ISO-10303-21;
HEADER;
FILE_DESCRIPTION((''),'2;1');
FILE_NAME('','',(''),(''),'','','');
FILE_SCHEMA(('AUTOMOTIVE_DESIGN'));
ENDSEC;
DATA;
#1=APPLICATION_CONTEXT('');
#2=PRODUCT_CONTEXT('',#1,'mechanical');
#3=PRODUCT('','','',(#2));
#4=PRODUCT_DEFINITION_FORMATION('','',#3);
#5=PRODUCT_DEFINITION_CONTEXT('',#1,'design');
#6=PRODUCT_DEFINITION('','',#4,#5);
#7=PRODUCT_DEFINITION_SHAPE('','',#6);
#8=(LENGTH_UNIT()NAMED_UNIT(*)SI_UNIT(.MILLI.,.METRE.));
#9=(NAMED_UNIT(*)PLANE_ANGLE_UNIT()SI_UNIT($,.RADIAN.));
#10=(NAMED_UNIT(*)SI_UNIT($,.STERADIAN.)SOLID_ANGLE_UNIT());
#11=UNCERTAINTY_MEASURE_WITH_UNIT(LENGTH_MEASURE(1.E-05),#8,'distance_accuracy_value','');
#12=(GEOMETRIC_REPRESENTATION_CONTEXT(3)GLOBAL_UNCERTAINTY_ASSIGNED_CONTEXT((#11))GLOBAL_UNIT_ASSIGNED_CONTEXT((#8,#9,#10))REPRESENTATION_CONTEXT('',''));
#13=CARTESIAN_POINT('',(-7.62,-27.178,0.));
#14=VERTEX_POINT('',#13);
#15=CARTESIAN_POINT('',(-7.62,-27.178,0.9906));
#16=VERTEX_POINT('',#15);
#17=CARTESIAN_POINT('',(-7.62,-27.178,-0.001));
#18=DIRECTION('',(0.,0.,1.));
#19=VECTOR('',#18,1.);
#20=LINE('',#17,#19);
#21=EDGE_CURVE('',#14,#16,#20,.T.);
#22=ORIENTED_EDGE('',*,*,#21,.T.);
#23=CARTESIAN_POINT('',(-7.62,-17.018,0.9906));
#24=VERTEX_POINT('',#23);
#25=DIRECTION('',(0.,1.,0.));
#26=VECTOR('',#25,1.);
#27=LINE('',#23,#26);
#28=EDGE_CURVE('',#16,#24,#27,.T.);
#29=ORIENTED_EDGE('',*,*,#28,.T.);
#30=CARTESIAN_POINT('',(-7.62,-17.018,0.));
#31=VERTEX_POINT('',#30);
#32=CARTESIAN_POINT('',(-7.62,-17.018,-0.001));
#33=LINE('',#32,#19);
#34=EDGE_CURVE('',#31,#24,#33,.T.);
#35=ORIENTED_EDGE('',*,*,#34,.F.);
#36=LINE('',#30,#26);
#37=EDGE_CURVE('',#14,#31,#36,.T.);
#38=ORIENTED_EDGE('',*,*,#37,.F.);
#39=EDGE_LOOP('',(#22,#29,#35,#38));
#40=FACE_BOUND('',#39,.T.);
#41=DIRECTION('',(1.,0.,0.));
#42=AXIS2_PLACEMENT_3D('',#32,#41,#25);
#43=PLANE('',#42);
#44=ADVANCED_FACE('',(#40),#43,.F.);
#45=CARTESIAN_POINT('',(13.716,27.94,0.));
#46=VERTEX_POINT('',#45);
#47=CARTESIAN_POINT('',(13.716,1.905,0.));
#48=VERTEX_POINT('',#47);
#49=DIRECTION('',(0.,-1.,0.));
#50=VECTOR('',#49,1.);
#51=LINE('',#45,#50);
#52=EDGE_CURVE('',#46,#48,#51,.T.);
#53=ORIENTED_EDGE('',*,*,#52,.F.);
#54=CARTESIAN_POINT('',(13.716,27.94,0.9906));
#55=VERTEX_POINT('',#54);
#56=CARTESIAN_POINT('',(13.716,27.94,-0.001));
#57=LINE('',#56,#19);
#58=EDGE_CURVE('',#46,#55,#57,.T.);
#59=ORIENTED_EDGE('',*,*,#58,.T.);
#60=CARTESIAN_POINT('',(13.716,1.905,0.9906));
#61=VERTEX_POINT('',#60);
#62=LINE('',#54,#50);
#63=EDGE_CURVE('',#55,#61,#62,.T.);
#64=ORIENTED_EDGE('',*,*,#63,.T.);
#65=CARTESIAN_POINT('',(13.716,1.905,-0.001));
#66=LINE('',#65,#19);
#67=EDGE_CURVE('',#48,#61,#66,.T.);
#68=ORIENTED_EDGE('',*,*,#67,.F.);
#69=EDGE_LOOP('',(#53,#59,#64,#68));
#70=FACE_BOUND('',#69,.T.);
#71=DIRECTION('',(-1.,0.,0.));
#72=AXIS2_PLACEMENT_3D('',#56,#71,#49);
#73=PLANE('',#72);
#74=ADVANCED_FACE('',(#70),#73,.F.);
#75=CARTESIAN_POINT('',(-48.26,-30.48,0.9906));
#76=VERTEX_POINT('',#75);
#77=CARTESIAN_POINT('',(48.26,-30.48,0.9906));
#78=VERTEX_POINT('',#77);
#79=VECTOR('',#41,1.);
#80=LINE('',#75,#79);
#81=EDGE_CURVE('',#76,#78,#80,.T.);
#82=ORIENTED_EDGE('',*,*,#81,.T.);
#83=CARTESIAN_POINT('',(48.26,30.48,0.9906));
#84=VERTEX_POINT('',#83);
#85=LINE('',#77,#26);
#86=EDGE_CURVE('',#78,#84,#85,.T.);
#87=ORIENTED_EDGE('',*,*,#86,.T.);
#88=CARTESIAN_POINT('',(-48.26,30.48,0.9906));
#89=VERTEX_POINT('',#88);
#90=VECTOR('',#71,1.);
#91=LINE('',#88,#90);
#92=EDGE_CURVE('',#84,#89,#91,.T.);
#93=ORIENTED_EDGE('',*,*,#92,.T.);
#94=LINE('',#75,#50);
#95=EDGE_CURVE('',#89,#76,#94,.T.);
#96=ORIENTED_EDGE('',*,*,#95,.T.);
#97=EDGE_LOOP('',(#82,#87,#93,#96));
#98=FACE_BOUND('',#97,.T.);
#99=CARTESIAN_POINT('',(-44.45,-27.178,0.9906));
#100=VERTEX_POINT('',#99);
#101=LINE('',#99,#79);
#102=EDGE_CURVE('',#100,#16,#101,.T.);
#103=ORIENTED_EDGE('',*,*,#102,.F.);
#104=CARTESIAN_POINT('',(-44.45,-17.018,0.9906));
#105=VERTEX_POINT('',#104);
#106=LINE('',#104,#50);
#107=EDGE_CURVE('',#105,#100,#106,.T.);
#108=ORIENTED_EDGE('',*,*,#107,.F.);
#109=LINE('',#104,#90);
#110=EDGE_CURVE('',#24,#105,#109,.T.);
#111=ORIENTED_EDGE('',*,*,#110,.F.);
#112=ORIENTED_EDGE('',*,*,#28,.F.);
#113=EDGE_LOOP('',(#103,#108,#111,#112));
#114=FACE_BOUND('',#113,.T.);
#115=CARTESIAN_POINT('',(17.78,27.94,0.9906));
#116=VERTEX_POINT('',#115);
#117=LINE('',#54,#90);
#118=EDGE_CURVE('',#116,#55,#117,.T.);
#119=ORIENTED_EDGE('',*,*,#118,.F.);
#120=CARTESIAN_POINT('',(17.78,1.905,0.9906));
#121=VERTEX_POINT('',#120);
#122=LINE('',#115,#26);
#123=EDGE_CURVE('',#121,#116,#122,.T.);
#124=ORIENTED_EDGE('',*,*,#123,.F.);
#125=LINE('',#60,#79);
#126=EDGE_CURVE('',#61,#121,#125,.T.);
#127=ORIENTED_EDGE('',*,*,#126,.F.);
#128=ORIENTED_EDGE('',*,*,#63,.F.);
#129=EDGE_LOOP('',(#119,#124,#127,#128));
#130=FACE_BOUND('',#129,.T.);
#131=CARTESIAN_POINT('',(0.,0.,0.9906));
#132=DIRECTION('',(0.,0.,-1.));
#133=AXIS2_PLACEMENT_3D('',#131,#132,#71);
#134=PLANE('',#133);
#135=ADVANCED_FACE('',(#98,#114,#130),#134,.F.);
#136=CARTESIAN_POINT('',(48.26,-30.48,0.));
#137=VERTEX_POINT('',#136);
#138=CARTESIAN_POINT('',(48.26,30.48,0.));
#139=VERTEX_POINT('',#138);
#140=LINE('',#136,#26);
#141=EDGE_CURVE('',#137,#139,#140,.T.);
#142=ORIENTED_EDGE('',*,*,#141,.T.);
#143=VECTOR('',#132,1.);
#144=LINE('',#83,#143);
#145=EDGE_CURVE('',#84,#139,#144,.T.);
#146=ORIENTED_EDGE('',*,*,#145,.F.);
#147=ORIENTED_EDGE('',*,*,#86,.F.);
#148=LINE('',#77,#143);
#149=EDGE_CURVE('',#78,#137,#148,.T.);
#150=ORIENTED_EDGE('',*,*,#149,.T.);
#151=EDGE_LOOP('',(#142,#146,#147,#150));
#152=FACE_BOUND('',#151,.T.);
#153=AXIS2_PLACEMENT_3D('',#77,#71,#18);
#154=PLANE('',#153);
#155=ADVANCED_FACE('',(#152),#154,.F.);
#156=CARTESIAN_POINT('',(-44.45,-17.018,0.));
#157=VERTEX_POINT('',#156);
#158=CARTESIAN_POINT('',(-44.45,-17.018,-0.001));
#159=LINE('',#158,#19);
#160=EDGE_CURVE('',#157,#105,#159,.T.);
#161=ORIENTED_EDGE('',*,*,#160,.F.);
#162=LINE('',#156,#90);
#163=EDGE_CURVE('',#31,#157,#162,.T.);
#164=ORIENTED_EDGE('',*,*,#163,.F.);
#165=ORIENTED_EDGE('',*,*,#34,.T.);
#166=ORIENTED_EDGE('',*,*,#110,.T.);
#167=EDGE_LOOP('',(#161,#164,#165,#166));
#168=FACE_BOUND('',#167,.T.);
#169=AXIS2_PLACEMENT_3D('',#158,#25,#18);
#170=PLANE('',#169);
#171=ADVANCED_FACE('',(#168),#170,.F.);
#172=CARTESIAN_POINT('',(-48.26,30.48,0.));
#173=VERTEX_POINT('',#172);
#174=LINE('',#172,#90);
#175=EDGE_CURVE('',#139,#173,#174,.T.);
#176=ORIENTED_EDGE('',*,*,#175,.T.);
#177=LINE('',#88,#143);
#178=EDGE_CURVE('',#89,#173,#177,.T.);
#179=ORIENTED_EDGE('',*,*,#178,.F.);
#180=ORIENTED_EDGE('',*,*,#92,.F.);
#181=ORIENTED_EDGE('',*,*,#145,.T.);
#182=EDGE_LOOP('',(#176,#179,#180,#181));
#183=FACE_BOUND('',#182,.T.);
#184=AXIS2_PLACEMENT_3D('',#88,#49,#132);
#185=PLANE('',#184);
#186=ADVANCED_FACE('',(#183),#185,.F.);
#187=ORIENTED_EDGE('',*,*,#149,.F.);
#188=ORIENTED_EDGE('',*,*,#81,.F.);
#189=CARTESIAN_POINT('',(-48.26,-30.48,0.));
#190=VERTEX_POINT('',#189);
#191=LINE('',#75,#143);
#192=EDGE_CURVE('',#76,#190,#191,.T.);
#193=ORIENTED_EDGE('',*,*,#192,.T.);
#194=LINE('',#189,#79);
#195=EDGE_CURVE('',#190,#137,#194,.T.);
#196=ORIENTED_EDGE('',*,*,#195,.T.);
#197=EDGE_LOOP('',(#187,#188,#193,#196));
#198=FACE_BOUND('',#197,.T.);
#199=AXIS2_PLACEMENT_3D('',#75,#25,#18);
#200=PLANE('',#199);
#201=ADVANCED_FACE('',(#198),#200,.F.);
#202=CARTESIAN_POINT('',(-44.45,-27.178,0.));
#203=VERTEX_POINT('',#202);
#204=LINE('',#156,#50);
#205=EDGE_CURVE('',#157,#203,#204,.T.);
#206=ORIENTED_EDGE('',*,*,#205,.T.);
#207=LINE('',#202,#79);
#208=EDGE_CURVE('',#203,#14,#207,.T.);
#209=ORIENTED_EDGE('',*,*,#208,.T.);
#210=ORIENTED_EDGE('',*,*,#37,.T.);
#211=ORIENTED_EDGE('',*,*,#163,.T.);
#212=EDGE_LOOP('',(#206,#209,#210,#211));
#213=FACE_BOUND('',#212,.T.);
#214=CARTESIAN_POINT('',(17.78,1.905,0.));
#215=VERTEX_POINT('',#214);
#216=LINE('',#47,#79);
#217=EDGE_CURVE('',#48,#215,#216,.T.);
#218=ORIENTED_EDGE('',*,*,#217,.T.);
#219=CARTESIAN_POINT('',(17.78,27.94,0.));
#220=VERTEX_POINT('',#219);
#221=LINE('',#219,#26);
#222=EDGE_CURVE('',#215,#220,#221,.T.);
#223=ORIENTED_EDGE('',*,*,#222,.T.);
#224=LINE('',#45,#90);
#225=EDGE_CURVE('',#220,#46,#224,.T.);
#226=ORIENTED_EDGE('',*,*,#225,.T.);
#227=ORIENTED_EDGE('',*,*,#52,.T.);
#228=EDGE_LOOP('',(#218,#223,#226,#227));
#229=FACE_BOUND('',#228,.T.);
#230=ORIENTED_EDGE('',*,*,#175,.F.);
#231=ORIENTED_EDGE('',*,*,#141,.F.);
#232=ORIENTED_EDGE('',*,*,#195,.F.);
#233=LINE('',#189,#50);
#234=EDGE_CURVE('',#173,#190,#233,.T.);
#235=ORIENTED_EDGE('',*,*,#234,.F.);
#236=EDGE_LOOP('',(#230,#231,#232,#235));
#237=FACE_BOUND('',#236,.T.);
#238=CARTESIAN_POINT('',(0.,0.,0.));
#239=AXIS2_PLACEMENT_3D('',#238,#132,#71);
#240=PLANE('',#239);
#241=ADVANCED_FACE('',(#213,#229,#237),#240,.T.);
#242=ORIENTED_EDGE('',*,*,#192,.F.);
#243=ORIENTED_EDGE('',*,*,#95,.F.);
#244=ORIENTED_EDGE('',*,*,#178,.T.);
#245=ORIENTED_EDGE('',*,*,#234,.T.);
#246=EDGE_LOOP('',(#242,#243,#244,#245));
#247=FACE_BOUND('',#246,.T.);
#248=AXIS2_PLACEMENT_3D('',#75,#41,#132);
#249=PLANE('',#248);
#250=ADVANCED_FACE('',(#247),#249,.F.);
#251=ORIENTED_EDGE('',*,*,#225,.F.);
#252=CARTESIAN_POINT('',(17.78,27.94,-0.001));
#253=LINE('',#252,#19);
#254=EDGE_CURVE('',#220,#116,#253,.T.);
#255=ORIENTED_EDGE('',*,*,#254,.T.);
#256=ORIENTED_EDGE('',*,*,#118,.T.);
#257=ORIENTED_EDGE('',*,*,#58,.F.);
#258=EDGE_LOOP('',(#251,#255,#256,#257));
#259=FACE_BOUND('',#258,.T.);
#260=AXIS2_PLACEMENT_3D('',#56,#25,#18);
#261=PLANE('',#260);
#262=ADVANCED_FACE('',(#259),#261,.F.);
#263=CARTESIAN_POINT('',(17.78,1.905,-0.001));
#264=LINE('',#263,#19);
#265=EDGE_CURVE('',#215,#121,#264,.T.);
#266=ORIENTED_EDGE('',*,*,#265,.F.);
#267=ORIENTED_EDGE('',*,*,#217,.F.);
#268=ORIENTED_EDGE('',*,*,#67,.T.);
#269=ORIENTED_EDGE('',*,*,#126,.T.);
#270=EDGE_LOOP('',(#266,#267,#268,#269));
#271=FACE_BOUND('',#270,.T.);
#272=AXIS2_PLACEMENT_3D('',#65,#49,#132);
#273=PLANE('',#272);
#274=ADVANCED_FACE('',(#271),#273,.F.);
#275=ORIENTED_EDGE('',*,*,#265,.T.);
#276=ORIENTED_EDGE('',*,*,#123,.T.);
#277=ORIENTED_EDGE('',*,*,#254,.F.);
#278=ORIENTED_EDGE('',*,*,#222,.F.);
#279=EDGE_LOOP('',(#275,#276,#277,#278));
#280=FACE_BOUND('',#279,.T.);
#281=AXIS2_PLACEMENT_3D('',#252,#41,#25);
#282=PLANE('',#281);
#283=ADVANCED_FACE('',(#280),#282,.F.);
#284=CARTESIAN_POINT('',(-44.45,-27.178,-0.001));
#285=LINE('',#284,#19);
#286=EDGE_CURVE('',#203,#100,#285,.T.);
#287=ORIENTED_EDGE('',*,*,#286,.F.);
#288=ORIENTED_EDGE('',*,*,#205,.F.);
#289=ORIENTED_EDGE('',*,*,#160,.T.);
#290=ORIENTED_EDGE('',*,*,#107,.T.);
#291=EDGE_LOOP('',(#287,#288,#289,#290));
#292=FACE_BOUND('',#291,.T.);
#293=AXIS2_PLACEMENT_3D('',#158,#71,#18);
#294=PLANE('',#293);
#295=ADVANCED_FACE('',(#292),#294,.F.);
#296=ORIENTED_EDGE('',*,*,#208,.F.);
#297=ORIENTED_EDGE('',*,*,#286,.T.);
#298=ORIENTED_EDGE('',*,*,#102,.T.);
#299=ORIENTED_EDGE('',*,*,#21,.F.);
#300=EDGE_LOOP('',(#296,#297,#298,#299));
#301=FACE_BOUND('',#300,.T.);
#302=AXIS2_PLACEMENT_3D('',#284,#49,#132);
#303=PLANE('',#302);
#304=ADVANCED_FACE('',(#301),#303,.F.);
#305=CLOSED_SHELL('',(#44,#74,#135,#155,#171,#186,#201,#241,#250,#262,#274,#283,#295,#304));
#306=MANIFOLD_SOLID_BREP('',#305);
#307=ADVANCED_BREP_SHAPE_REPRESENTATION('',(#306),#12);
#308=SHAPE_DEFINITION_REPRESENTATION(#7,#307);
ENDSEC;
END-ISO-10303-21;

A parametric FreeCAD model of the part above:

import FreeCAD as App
import Part
import Sketcher
from FreeCAD import Vector
Q = App.Units.Quantity

doc = App.newDocument("Part")
body = doc.addObject("PartDesign::Body", "Body")

sketch1 = doc.addObject("Sketcher::SketchObject", "Sketch")
body.addObject(sketch1)
sketch1.AttachmentSupport = (doc.XY_Plane, [""])
sketch1.MapMode = "FlatFace"
sketch1.addGeometry([
    Part.LineSegment(Vector(-48, 30, 0), Vector(-48, -30, 0)),
    Part.LineSegment(Vector(-48, -30, 0), Vector(48, -30, 0)),
    Part.LineSegment(Vector(48, -30, 0), Vector(48, 30, 0)),
    Part.LineSegment(Vector(48, 30, 0), Vector(-48, 30, 0)),
], False)
sketch1.addConstraint([
    Sketcher.Constraint("Coincident", 0, 2, 1, 1),
    Sketcher.Constraint("Coincident", 1, 2, 2, 1),
    Sketcher.Constraint("Coincident", 2, 2, 3, 1),
    Sketcher.Constraint("Coincident", 3, 2, 0, 1),
    Sketcher.Constraint("Vertical", 0),
    Sketcher.Constraint("Horizontal", 1),
    Sketcher.Constraint("Vertical", 2),
    Sketcher.Constraint("Horizontal", 3),
    Sketcher.Constraint("Symmetric", 0, 2, 2, 2, -1, 1),
    Sketcher.Constraint("DistanceX", 1, 1, 1, 2, Q("3.8 in")),
    Sketcher.Constraint("DistanceY", 0, 2, 0, 1, Q("2.4 in")),
])
pad1 = doc.addObject("PartDesign::Pad", "Pad")
body.addObject(pad1)
pad1.Profile = sketch1
pad1.Length = Q("0.039 in")

sketch2 = doc.addObject("Sketcher::SketchObject", "Sketch001")
body.addObject(sketch2)
sketch2.AttachmentSupport = (doc.XY_Plane, [""])
sketch2.MapMode = "FlatFace"
sketch2.AttachmentOffset = App.Placement(Vector(0, 0, 0.039 * 25.4), App.Rotation())
sketch2.addGeometry([
    Part.LineSegment(Vector(-44, -17, 0), Vector(-44, -27, 0)),
    Part.LineSegment(Vector(-44, -27, 0), Vector(-8, -27, 0)),
    Part.LineSegment(Vector(-8, -27, 0), Vector(-8, -17, 0)),
    Part.LineSegment(Vector(-8, -17, 0), Vector(-44, -17, 0)),
], False)
sketch2.addConstraint([
    Sketcher.Constraint("Coincident", 0, 2, 1, 1),
    Sketcher.Constraint("Coincident", 1, 2, 2, 1),
    Sketcher.Constraint("Coincident", 2, 2, 3, 1),
    Sketcher.Constraint("Coincident", 3, 2, 0, 1),
    Sketcher.Constraint("Vertical", 0),
    Sketcher.Constraint("Horizontal", 1),
    Sketcher.Constraint("Vertical", 2),
    Sketcher.Constraint("Horizontal", 3),
    Sketcher.Constraint("DistanceY", 0, 2, 0, 1, Q("0.4 in")),
    Sketcher.Constraint("DistanceX", 1, 1, 1, 2, Q("1.45 in")),
    Sketcher.Constraint("DistanceX", 1, 2, -1, 1, Q("0.3 in")),
    Sketcher.Constraint("DistanceY", 0, 2, -1, 1, Q("1.07 in")),
])
pocket1 = doc.addObject("PartDesign::Pocket", "Pocket")
body.addObject(pocket1)
pocket1.Profile = sketch2
pocket1.Type = "UpToFirst"

sketch3 = doc.addObject("Sketcher::SketchObject", "Sketch002")
body.addObject(sketch3)
sketch3.AttachmentSupport = (doc.XY_Plane, [""])
sketch3.MapMode = "FlatFace"
sketch3.AttachmentOffset = App.Placement(Vector(0, 0, 0.039 * 25.4), App.Rotation())
sketch3.addGeometry([
    Part.LineSegment(Vector(13.7, 27.9, 0), Vector(13.7, 1.9, 0)),
    Part.LineSegment(Vector(13.7, 1.9, 0), Vector(17.8, 1.9, 0)),
    Part.LineSegment(Vector(17.8, 1.9, 0), Vector(17.8, 27.9, 0)),
    Part.LineSegment(Vector(17.8, 27.9, 0), Vector(13.7, 27.9, 0)),
], False)
sketch3.addConstraint([
    Sketcher.Constraint("Coincident", 0, 2, 1, 1),
    Sketcher.Constraint("Coincident", 1, 2, 2, 1),
    Sketcher.Constraint("Coincident", 2, 2, 3, 1),
    Sketcher.Constraint("Coincident", 3, 2, 0, 1),
    Sketcher.Constraint("Vertical", 0),
    Sketcher.Constraint("Horizontal", 1),
    Sketcher.Constraint("Vertical", 2),
    Sketcher.Constraint("Horizontal", 3),
    Sketcher.Constraint("DistanceX", 1, 1, 1, 2, Q("0.16 in")),
    Sketcher.Constraint("DistanceX", -1, 1, 1, 2, Q("0.7 in")),
    Sketcher.Constraint("DistanceY", -1, 1, 2, 2, Q("1.1 in")),
    Sketcher.Constraint("DistanceY", 0, 2, 0, 1, Q("1.025 in")),
])
pocket2 = doc.addObject("PartDesign::Pocket", "Pocket001")
body.addObject(pocket2)
pocket2.Profile = sketch3
pocket2.Type = "UpToFirst"

doc.recompute()
